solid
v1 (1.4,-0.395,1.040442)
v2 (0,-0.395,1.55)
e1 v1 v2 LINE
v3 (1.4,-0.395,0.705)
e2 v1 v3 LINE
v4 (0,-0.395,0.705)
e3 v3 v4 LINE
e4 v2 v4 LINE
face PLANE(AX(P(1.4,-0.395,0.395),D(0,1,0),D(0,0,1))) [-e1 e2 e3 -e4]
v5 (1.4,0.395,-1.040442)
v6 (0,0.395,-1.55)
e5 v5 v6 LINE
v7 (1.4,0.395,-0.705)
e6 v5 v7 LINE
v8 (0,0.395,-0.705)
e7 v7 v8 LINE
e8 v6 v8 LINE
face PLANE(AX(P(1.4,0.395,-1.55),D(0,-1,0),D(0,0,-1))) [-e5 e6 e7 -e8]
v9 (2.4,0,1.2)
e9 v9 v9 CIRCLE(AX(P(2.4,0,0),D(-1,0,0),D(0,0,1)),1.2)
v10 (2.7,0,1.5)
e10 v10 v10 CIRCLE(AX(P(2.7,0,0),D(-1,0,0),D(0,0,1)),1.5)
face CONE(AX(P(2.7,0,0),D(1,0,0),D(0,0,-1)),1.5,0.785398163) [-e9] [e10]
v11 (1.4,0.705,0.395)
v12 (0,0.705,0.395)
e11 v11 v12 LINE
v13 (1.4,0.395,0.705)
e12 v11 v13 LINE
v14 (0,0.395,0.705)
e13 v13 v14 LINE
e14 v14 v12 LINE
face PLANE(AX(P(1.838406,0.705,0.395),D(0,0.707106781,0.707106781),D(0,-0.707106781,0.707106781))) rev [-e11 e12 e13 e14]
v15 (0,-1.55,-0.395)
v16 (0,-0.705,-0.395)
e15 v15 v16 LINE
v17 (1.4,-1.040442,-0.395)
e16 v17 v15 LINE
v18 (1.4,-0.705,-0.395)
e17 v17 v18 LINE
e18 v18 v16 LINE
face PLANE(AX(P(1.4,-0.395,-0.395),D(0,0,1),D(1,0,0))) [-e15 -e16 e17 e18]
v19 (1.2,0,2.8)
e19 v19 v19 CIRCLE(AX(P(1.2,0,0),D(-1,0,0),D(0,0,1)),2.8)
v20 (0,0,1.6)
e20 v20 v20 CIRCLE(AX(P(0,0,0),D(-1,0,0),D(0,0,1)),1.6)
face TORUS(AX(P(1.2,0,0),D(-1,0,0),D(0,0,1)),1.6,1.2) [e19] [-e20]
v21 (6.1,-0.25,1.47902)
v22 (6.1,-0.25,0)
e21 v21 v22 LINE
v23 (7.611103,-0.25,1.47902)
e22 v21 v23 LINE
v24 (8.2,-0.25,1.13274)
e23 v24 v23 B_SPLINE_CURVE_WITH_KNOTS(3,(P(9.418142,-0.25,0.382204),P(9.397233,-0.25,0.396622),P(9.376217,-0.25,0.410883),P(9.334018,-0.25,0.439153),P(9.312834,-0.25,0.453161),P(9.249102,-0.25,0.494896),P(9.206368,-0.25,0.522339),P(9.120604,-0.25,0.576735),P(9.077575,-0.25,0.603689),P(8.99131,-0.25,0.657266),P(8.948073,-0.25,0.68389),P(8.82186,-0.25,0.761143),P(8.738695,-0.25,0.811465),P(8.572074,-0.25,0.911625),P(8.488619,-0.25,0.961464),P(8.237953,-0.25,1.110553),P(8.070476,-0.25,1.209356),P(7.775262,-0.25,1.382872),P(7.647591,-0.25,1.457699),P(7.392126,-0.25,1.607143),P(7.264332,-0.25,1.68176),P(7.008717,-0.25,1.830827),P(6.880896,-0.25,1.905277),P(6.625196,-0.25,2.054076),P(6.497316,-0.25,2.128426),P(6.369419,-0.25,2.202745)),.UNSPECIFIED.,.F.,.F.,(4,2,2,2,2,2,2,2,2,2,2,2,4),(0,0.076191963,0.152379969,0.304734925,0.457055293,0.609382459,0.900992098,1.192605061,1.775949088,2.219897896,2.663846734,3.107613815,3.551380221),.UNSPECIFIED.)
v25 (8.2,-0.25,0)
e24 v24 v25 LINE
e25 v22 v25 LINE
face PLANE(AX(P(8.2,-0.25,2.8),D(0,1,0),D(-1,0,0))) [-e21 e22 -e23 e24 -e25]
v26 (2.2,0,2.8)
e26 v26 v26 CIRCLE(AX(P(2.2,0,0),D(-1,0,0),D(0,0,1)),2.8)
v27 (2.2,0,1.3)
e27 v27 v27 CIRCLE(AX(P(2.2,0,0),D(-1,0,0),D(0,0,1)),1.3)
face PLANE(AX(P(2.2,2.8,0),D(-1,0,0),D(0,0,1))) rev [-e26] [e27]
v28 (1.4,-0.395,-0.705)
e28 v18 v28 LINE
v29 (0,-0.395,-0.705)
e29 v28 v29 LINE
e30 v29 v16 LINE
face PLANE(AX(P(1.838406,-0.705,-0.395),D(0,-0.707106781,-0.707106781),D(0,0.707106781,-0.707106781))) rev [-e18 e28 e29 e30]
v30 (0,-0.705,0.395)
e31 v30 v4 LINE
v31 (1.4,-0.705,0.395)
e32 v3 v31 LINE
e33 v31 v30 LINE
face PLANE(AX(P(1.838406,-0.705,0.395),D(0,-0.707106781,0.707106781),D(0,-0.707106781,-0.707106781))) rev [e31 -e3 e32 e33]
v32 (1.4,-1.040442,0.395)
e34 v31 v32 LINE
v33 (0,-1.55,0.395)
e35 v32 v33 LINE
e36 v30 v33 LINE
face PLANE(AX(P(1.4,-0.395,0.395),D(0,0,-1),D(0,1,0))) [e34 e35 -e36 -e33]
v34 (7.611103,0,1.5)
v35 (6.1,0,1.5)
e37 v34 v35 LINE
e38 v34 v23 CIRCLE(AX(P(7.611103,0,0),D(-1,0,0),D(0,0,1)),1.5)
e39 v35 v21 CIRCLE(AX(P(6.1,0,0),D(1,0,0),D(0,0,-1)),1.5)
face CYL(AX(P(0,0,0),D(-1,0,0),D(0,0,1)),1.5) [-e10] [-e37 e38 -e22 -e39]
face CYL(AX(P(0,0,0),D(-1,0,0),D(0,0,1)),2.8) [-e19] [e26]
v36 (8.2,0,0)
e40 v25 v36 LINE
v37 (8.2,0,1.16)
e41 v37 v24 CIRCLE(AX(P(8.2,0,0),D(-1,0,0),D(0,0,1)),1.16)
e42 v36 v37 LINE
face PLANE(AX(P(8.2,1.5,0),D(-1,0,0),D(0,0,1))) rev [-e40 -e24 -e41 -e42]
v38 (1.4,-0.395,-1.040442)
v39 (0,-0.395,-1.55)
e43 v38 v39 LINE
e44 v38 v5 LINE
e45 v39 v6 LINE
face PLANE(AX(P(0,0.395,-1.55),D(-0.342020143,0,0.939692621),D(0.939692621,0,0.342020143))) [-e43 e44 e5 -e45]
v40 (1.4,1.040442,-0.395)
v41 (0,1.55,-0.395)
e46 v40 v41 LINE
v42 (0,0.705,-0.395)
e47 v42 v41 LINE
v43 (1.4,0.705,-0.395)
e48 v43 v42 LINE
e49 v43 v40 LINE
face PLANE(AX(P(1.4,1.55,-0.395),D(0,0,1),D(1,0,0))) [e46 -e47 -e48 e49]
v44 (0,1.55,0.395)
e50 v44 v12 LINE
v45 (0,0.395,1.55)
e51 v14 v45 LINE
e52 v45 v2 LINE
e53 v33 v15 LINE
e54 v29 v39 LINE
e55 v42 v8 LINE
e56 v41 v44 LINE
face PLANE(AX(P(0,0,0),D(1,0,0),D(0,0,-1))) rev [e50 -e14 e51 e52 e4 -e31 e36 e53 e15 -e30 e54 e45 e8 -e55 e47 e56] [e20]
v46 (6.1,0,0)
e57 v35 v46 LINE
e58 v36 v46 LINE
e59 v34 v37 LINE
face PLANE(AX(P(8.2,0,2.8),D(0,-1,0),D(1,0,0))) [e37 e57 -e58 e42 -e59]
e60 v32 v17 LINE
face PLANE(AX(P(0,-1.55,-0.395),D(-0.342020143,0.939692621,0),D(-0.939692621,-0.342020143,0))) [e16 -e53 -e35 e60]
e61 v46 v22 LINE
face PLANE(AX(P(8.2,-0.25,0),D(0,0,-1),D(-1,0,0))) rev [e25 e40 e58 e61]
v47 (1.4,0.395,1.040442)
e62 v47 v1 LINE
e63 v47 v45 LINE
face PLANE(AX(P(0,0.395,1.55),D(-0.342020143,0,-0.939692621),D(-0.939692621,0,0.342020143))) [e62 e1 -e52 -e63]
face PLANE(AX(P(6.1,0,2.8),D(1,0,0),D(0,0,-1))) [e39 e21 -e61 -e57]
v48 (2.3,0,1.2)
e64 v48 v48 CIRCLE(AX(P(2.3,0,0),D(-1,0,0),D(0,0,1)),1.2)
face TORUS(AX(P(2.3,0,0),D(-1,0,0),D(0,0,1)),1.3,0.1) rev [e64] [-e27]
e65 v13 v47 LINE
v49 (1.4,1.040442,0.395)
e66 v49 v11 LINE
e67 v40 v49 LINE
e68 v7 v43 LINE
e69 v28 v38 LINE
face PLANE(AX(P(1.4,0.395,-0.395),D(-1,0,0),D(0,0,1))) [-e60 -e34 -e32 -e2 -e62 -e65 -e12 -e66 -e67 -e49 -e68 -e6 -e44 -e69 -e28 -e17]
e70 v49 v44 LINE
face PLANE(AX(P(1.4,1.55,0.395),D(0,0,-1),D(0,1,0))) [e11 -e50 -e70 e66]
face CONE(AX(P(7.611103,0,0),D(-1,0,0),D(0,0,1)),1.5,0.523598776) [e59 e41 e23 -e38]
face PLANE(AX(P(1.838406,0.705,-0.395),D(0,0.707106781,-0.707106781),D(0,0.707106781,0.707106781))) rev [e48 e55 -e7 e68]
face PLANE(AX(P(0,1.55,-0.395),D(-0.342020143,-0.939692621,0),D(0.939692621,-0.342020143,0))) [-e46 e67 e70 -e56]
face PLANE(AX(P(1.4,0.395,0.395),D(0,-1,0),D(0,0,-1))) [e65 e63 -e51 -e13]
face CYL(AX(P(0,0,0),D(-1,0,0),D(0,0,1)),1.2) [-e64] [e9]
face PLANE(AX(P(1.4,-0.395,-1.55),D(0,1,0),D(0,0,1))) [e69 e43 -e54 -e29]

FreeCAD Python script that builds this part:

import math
import FreeCAD as App
import Part
import Sketcher
from FreeCAD import Vector
Q = App.Units.Quantity


def faces_at(feature, points):
    """Names of the faces that lie closest to the given points."""
    faces = feature.Shape.Faces
    near = lambda p: min(range(len(faces)), key=lambda i: faces[i].distToShape(Part.Vertex(*p))[0])
    return sorted({f"Face{near(p) + 1}" for p in points})

doc = App.newDocument("Part")
body = doc.addObject("PartDesign::Body", "Body")

# Sketch on XY plane
sketch1 = body.newObject("Sketcher::SketchObject", "Sketch")
sketch1.AttachmentSupport = (doc.getObject("XY_Plane"), [""])
sketch1.MapMode = "FlatFace"
sketch1.addGeometry(Part.LineSegment(Vector(0, 1.6, 0), Vector(0, 0, 0)), False)
sketch1.addGeometry(Part.LineSegment(Vector(0, 0, 0), Vector(8.2, 0, 0)), False)
sketch1.addGeometry(Part.LineSegment(Vector(8.2, 0, 0), Vector(8.2, 1.5, 0)), False)
sketch1.addGeometry(Part.LineSegment(Vector(8.2, 1.5, 0), Vector(2.7, 1.5, 0)), False)
sketch1.addGeometry(Part.LineSegment(Vector(2.7, 1.5, 0), Vector(2.4, 1.2, 0)), False)
sketch1.addGeometry(Part.LineSegment(Vector(2.4, 1.2, 0), Vector(2.3, 1.2, 0)), False)
sketch1.addGeometry(Part.ArcOfCircle(Part.Circle(Vector(2.3, 1.3, 0), Vector(0, 0, 1), 0.1), math.radians(180), math.radians(270)), False)
sketch1.addGeometry(Part.LineSegment(Vector(2.2, 1.3, 0), Vector(2.2, 2.8, 0)), False)
sketch1.addGeometry(Part.LineSegment(Vector(2.2, 2.8, 0), Vector(1.2, 2.8, 0)), False)
sketch1.addGeometry(Part.ArcOfCircle(Part.Circle(Vector(1.2, 1.6, 0), Vector(0, 0, 1), 1.2), math.radians(90), math.radians(180)), False)
sketch1.addConstraint(Sketcher.Constraint("Coincident", 0, 2, 1, 1))
sketch1.addConstraint(Sketcher.Constraint("Coincident", 1, 2, 2, 1))
sketch1.addConstraint(Sketcher.Constraint("Coincident", 2, 2, 3, 1))
sketch1.addConstraint(Sketcher.Constraint("Coincident", 3, 2, 4, 1))
sketch1.addConstraint(Sketcher.Constraint("Coincident", 4, 2, 5, 1))
sketch1.addConstraint(Sketcher.Constraint("Tangent", 5, 2, 6, 2))
sketch1.addConstraint(Sketcher.Constraint("Tangent", 6, 1, 7, 1))
sketch1.addConstraint(Sketcher.Constraint("Coincident", 7, 2, 8, 1))
sketch1.addConstraint(Sketcher.Constraint("Tangent", 8, 2, 9, 1))
sketch1.addConstraint(Sketcher.Constraint("Tangent", 9, 2, 0, 1))
sketch1.addConstraint(Sketcher.Constraint("Vertical", 0))
sketch1.addConstraint(Sketcher.Constraint("Horizontal", 1))
sketch1.addConstraint(Sketcher.Constraint("Vertical", 2))
sketch1.addConstraint(Sketcher.Constraint("Horizontal", 3))
sketch1.addConstraint(Sketcher.Constraint("Horizontal", 5))
sketch1.addConstraint(Sketcher.Constraint("Vertical", 7))
sketch1.addConstraint(Sketcher.Constraint("Horizontal", 8))
sketch1.addConstraint(Sketcher.Constraint("Coincident", 0, 2, -1, 1))
sketch1.addConstraint(Sketcher.Constraint("Equal", 2, 7))
sketch1.addConstraint(Sketcher.Constraint("Radius", 6, Q("0.1 mm")))
sketch1.addConstraint(Sketcher.Constraint("Radius", 9, Q("1.2 mm")))
sketch1.addConstraint(Sketcher.Constraint("DistanceX", 8, 2, 8, 1, Q("1 mm")))
sketch1.addConstraint(Sketcher.Constraint("Angle", 4, Q("-135 deg")))
sketch1.addConstraint(Sketcher.Constraint("DistanceX", 1, 1, 1, 2, Q("8.2 mm")))
sketch1.addConstraint(Sketcher.Constraint("DistanceX", 3, 2, 3, 1, Q("5.5 mm")))
sketch1.addConstraint(Sketcher.Constraint("DistanceX", 5, 2, 5, 1, Q("0.1 mm")))
sketch1.addConstraint(Sketcher.Constraint("DistanceY", 0, 2, 0, 1, Q("1.6 mm")))
revolution = body.newObject("PartDesign::Revolution", "Revolution")
revolution.Profile = sketch1
revolution.ReferenceAxis = (sketch1, ["H_Axis"])
revolution.Angle = 360

# Sketch on YZ plane
sketch2 = body.newObject("Sketcher::SketchObject", "Sketch001")
sketch2.AttachmentSupport = (doc.getObject("YZ_Plane"), [""])
sketch2.MapMode = "FlatFace"
sketch2.addGeometry(Part.LineSegment(Vector(1.55, -0.395, 0), Vector(1.55, 0.395, 0)), False)
sketch2.addGeometry(Part.LineSegment(Vector(1.55, 0.395, 0), Vector(0.395, 0.395, 0)), False)
sketch2.addGeometry(Part.LineSegment(Vector(0.395, 0.395, 0), Vector(0.395, 1.55, 0)), False)
sketch2.addGeometry(Part.LineSegment(Vector(0.395, 1.55, 0), Vector(-0.395, 1.55, 0)), False)
sketch2.addGeometry(Part.LineSegment(Vector(-0.395, 1.55, 0), Vector(-0.395, 0.395, 0)), False)
sketch2.addGeometry(Part.LineSegment(Vector(-0.395, 0.395, 0), Vector(-1.55, 0.395, 0)), False)
sketch2.addGeometry(Part.LineSegment(Vector(-1.55, 0.395, 0), Vector(-1.55, -0.395, 0)), False)
sketch2.addGeometry(Part.LineSegment(Vector(-1.55, -0.395, 0), Vector(-0.395, -0.395, 0)), False)
sketch2.addGeometry(Part.LineSegment(Vector(-0.395, -0.395, 0), Vector(-0.395, -1.55, 0)), False)
sketch2.addGeometry(Part.LineSegment(Vector(-0.395, -1.55, 0), Vector(0.395, -1.55, 0)), False)
sketch2.addGeometry(Part.LineSegment(Vector(0.395, -1.55, 0), Vector(0.395, -0.395, 0)), False)
sketch2.addGeometry(Part.LineSegment(Vector(0.395, -0.395, 0), Vector(1.55, -0.395, 0)), False)
sketch2.addConstraint(Sketcher.Constraint("Coincident", 0, 2, 1, 1))
sketch2.addConstraint(Sketcher.Constraint("Coincident", 1, 2, 2, 1))
sketch2.addConstraint(Sketcher.Constraint("Coincident", 2, 2, 3, 1))
sketch2.addConstraint(Sketcher.Constraint("Coincident", 3, 2, 4, 1))
sketch2.addConstraint(Sketcher.Constraint("Coincident", 4, 2, 5, 1))
sketch2.addConstraint(Sketcher.Constraint("Coincident", 5, 2, 6, 1))
sketch2.addConstraint(Sketcher.Constraint("Coincident", 6, 2, 7, 1))
sketch2.addConstraint(Sketcher.Constraint("Coincident", 7, 2, 8, 1))
sketch2.addConstraint(Sketcher.Constraint("Coincident", 8, 2, 9, 1))
sketch2.addConstraint(Sketcher.Constraint("Coincident", 9, 2, 10, 1))
sketch2.addConstraint(Sketcher.Constraint("Coincident", 10, 2, 11, 1))
sketch2.addConstraint(Sketcher.Constraint("Coincident", 11, 2, 0, 1))
sketch2.addConstraint(Sketcher.Constraint("Vertical", 0))
sketch2.addConstraint(Sketcher.Constraint("Horizontal", 1))
sketch2.addConstraint(Sketcher.Constraint("Vertical", 2))
sketch2.addConstraint(Sketcher.Constraint("Horizontal", 3))
sketch2.addConstraint(Sketcher.Constraint("Vertical", 4))
sketch2.addConstraint(Sketcher.Constraint("Horizontal", 5))
sketch2.addConstraint(Sketcher.Constraint("Vertical", 6))
sketch2.addConstraint(Sketcher.Constraint("Horizontal", 7))
sketch2.addConstraint(Sketcher.Constraint("Vertical", 8))
sketch2.addConstraint(Sketcher.Constraint("Horizontal", 9))
sketch2.addConstraint(Sketcher.Constraint("Vertical", 10))
sketch2.addConstraint(Sketcher.Constraint("Horizontal", 11))
sketch2.addConstraint(Sketcher.Constraint("Symmetric", 0, 2, 6, 2, -1, 1))
sketch2.addConstraint(Sketcher.Constraint("Symmetric", 2, 2, 8, 2, -1, 1))
sketch2.addConstraint(Sketcher.Constraint("Symmetric", 4, 2, 10, 2, -1, 1))
sketch2.addConstraint(Sketcher.Constraint("Symmetric", 1, 2, 4, 2, -2))
sketch2.addConstraint(Sketcher.Constraint("Equal", 9, 0))
sketch2.addConstraint(Sketcher.Constraint("Equal", 11, 2))
sketch2.addConstraint(Sketcher.Constraint("DistanceX", 3, 2, 3, 1, Q("0.79 mm")))
sketch2.addConstraint(Sketcher.Constraint("DistanceX", 5, 2, 0, 2, Q("3.1 mm")))
pocket1 = body.newObject("PartDesign::Pocket", "Pocket")
pocket1.Profile = sketch2
pocket1.Length = 1.4
pocket1.Reversed = True
doc.recompute()

draft = body.newObject("PartDesign::Draft", "Draft")
draft.Base = (pocket1, faces_at(pocket1, [
    (0.7, 0, -1.55),
    (0.7, -1.55, 0),
    (0.7, 0, 1.55),
    (0.7, 1.55, 0),
]))
draft.NeutralPlane = (doc.getObject("YZ_Plane"), [""])
draft.Angle = 20
draft.Reversed = True

# Sketch on YZ plane
sketch3 = body.newObject("Sketcher::SketchObject", "Sketch002")
sketch3.AttachmentSupport = (doc.getObject("YZ_Plane"), [""])
sketch3.MapMode = "FlatFace"
sketch3.addGeometry(Part.LineSegment(Vector(0.395, 0.705, 0), Vector(0.705, 0.395, 0)), False)
sketch3.addGeometry(Part.LineSegment(Vector(0.705, 0.395, 0), Vector(0.395, 0.395, 0)), False)
sketch3.addGeometry(Part.LineSegment(Vector(0.395, 0.395, 0), Vector(0.395, 0.705, 0)), False)
sketch3.addGeometry(Part.LineSegment(Vector(0.395, -0.705, 0), Vector(0.395, -0.395, 0)), False)
sketch3.addGeometry(Part.LineSegment(Vector(0.395, -0.395, 0), Vector(0.705, -0.395, 0)), False)
sketch3.addGeometry(Part.LineSegment(Vector(0.705, -0.395, 0), Vector(0.395, -0.705, 0)), False)
sketch3.addGeometry(Part.LineSegment(Vector(-0.395, -0.705, 0), Vector(-0.705, -0.395, 0)), False)
sketch3.addGeometry(Part.LineSegment(Vector(-0.705, -0.395, 0), Vector(-0.395, -0.395, 0)), False)
sketch3.addGeometry(Part.LineSegment(Vector(-0.395, -0.395, 0), Vector(-0.395, -0.705, 0)), False)
sketch3.addGeometry(Part.LineSegment(Vector(-0.395, 0.705, 0), Vector(-0.395, 0.395, 0)), False)
sketch3.addGeometry(Part.LineSegment(Vector(-0.395, 0.395, 0), Vector(-0.705, 0.395, 0)), False)
sketch3.addGeometry(Part.LineSegment(Vector(-0.705, 0.395, 0), Vector(-0.395, 0.705, 0)), False)
sketch3.addConstraint(Sketcher.Constraint("Coincident", 0, 2, 1, 1))
sketch3.addConstraint(Sketcher.Constraint("Coincident", 1, 2, 2, 1))
sketch3.addConstraint(Sketcher.Constraint("Coincident", 2, 2, 0, 1))
sketch3.addConstraint(Sketcher.Constraint("Coincident", 3, 2, 4, 1))
sketch3.addConstraint(Sketcher.Constraint("Coincident", 4, 2, 5, 1))
sketch3.addConstraint(Sketcher.Constraint("Coincident", 5, 2, 3, 1))
sketch3.addConstraint(Sketcher.Constraint("Coincident", 6, 2, 7, 1))
sketch3.addConstraint(Sketcher.Constraint("Coincident", 7, 2, 8, 1))
sketch3.addConstraint(Sketcher.Constraint("Coincident", 8, 2, 6, 1))
sketch3.addConstraint(Sketcher.Constraint("Coincident", 9, 2, 10, 1))
sketch3.addConstraint(Sketcher.Constraint("Coincident", 10, 2, 11, 1))
sketch3.addConstraint(Sketcher.Constraint("Coincident", 11, 2, 9, 1))
sketch3.addConstraint(Sketcher.Constraint("Horizontal", 1))
sketch3.addConstraint(Sketcher.Constraint("Vertical", 2))
sketch3.addConstraint(Sketcher.Constraint("Vertical", 3))
sketch3.addConstraint(Sketcher.Constraint("Horizontal", 4))
sketch3.addConstraint(Sketcher.Constraint("Horizontal", 7))
sketch3.addConstraint(Sketcher.Constraint("Vertical", 8))
sketch3.addConstraint(Sketcher.Constraint("Vertical", 9))
sketch3.addConstraint(Sketcher.Constraint("Horizontal", 10))
sketch3.addConstraint(Sketcher.Constraint("Symmetric", 0, 2, 6, 2, -1, 1))
sketch3.addConstraint(Sketcher.Constraint("Symmetric", 2, 2, 8, 2, -1, 1))
sketch3.addConstraint(Sketcher.Constraint("Symmetric", 3, 2, 9, 2, -1, 1))
sketch3.addConstraint(Sketcher.Constraint("Symmetric", 4, 2, 6, 2, -2))
sketch3.addConstraint(Sketcher.Constraint("Symmetric", 5, 2, 8, 2, -2))
sketch3.addConstraint(Sketcher.Constraint("Perpendicular", 0, 5))
sketch3.addConstraint(Sketcher.Constraint("Perpendicular", 6, 11))
sketch3.addConstraint(Sketcher.Constraint("Horizontal", 2, 2, 11, 2))
sketch3.addConstraint(Sketcher.Constraint("DistanceX", 1, 2, 1, 1, Q("0.31 mm")))
sketch3.addConstraint(Sketcher.Constraint("DistanceY", 3, 2, 2, 2, Q("1.1 mm")))
sketch3.addConstraint(Sketcher.Constraint("DistanceX", 6, 2, 3, 2, Q("1.1 mm")))
pocket2 = body.newObject("PartDesign::Pocket", "Pocket001")
pocket2.Profile = sketch3
pocket2.Length = 1.4
pocket2.Reversed = True

# Sketch on XY plane
sketch4 = body.newObject("Sketcher::SketchObject", "Sketch003")
sketch4.AttachmentSupport = (doc.getObject("XY_Plane"), [""])
sketch4.MapMode = "FlatFace"
sketch4.addGeometry(Part.LineSegment(Vector(8.2, 0, 0), Vector(8.708, 0, 0)), False)
sketch4.addGeometry(Part.LineSegment(Vector(8.708, 0, 0), Vector(8.708, 2.008, 0)), False)
sketch4.addGeometry(Part.LineSegment(Vector(8.708, 2.008, 0), Vector(7.611103, 2.008, 0)), False)
sketch4.addGeometry(Part.LineSegment(Vector(7.611103, 2.008, 0), Vector(7.611103, 1.5, 0)), False)
sketch4.addGeometry(Part.LineSegment(Vector(7.611103, 1.5, 0), Vector(8.2, 1.16, 0)), False)
sketch4.addGeometry(Part.LineSegment(Vector(8.2, 1.16, 0), Vector(8.2, 0, 0)), False)
sketch4.addConstraint(Sketcher.Constraint("Coincident", 0, 2, 1, 1))
sketch4.addConstraint(Sketcher.Constraint("Coincident", 1, 2, 2, 1))
sketch4.addConstraint(Sketcher.Constraint("Coincident", 2, 2, 3, 1))
sketch4.addConstraint(Sketcher.Constraint("Coincident", 3, 2, 4, 1))
sketch4.addConstraint(Sketcher.Constraint("Coincident", 4, 2, 5, 1))
sketch4.addConstraint(Sketcher.Constraint("Coincident", 5, 2, 0, 1))
sketch4.addConstraint(Sketcher.Constraint("Horizontal", 0))
sketch4.addConstraint(Sketcher.Constraint("Vertical", 1))
sketch4.addConstraint(Sketcher.Constraint("Horizontal", 2))
sketch4.addConstraint(Sketcher.Constraint("Vertical", 3))
sketch4.addConstraint(Sketcher.Constraint("Vertical", 5))
sketch4.addConstraint(Sketcher.Constraint("PointOnObject", 0, 2, -1))
sketch4.addConstraint(Sketcher.Constraint("Equal", 0, 3))
sketch4.addConstraint(Sketcher.Constraint("Angle", 4, Q("-30 deg")))
sketch4.addConstraint(Sketcher.Constraint("DistanceY", 5, 2, 5, 1, Q("1.16 mm")))
sketch4.addConstraint(Sketcher.Constraint("DistanceY", -1, 1, 3, 2, Q("1.5 mm")))
sketch4.addConstraint(Sketcher.Constraint("DistanceX", -1, 1, 4, 2, Q("8.2 mm")))
sketch4.addConstraint(Sketcher.Constraint("DistanceX", 0, 1, 0, 2, Q("0.508 mm")))
groove = body.newObject("PartDesign::Groove", "Groove")
groove.Profile = sketch4
groove.ReferenceAxis = (sketch4, ["H_Axis"])
groove.Angle = 360

# Sketch on XY plane
sketch5 = body.newObject("Sketcher::SketchObject", "Sketch004")
sketch5.AttachmentSupport = (doc.getObject("XY_Plane"), [""])
sketch5.MapMode = "FlatFace"
sketch5.addGeometry(Part.LineSegment(Vector(6.1, 0, 0), Vector(6.1, -0.25, 0)), False)
sketch5.addGeometry(Part.LineSegment(Vector(6.1, -0.25, 0), Vector(8.2, -0.25, 0)), False)
sketch5.addGeometry(Part.LineSegment(Vector(8.2, -0.25, 0), Vector(8.2, 0, 0)), False)
sketch5.addGeometry(Part.LineSegment(Vector(8.2, 0, 0), Vector(6.1, 0, 0)), False)
sketch5.addConstraint(Sketcher.Constraint("Coincident", 0, 2, 1, 1))
sketch5.addConstraint(Sketcher.Constraint("Coincident", 1, 2, 2, 1))
sketch5.addConstraint(Sketcher.Constraint("Coincident", 2, 2, 3, 1))
sketch5.addConstraint(Sketcher.Constraint("Coincident", 3, 2, 0, 1))
sketch5.addConstraint(Sketcher.Constraint("Vertical", 0))
sketch5.addConstraint(Sketcher.Constraint("Horizontal", 1))
sketch5.addConstraint(Sketcher.Constraint("Vertical", 2))
sketch5.addConstraint(Sketcher.Constraint("Horizontal", 3))
sketch5.addConstraint(Sketcher.Constraint("PointOnObject", 2, 2, -1))
sketch5.addConstraint(Sketcher.Constraint("DistanceX", 1, 1, 1, 2, Q("2.1 mm")))
sketch5.addConstraint(Sketcher.Constraint("DistanceY", 0, 2, 0, 1, Q("0.25 mm")))
sketch5.addConstraint(Sketcher.Constraint("DistanceX", -1, 1, 0, 2, Q("6.1 mm")))
pocket3 = body.newObject("PartDesign::Pocket", "Pocket002")
pocket3.Profile = sketch5
pocket3.Type = "ThroughAll"
pocket3.Reversed = True

doc.recompute()
